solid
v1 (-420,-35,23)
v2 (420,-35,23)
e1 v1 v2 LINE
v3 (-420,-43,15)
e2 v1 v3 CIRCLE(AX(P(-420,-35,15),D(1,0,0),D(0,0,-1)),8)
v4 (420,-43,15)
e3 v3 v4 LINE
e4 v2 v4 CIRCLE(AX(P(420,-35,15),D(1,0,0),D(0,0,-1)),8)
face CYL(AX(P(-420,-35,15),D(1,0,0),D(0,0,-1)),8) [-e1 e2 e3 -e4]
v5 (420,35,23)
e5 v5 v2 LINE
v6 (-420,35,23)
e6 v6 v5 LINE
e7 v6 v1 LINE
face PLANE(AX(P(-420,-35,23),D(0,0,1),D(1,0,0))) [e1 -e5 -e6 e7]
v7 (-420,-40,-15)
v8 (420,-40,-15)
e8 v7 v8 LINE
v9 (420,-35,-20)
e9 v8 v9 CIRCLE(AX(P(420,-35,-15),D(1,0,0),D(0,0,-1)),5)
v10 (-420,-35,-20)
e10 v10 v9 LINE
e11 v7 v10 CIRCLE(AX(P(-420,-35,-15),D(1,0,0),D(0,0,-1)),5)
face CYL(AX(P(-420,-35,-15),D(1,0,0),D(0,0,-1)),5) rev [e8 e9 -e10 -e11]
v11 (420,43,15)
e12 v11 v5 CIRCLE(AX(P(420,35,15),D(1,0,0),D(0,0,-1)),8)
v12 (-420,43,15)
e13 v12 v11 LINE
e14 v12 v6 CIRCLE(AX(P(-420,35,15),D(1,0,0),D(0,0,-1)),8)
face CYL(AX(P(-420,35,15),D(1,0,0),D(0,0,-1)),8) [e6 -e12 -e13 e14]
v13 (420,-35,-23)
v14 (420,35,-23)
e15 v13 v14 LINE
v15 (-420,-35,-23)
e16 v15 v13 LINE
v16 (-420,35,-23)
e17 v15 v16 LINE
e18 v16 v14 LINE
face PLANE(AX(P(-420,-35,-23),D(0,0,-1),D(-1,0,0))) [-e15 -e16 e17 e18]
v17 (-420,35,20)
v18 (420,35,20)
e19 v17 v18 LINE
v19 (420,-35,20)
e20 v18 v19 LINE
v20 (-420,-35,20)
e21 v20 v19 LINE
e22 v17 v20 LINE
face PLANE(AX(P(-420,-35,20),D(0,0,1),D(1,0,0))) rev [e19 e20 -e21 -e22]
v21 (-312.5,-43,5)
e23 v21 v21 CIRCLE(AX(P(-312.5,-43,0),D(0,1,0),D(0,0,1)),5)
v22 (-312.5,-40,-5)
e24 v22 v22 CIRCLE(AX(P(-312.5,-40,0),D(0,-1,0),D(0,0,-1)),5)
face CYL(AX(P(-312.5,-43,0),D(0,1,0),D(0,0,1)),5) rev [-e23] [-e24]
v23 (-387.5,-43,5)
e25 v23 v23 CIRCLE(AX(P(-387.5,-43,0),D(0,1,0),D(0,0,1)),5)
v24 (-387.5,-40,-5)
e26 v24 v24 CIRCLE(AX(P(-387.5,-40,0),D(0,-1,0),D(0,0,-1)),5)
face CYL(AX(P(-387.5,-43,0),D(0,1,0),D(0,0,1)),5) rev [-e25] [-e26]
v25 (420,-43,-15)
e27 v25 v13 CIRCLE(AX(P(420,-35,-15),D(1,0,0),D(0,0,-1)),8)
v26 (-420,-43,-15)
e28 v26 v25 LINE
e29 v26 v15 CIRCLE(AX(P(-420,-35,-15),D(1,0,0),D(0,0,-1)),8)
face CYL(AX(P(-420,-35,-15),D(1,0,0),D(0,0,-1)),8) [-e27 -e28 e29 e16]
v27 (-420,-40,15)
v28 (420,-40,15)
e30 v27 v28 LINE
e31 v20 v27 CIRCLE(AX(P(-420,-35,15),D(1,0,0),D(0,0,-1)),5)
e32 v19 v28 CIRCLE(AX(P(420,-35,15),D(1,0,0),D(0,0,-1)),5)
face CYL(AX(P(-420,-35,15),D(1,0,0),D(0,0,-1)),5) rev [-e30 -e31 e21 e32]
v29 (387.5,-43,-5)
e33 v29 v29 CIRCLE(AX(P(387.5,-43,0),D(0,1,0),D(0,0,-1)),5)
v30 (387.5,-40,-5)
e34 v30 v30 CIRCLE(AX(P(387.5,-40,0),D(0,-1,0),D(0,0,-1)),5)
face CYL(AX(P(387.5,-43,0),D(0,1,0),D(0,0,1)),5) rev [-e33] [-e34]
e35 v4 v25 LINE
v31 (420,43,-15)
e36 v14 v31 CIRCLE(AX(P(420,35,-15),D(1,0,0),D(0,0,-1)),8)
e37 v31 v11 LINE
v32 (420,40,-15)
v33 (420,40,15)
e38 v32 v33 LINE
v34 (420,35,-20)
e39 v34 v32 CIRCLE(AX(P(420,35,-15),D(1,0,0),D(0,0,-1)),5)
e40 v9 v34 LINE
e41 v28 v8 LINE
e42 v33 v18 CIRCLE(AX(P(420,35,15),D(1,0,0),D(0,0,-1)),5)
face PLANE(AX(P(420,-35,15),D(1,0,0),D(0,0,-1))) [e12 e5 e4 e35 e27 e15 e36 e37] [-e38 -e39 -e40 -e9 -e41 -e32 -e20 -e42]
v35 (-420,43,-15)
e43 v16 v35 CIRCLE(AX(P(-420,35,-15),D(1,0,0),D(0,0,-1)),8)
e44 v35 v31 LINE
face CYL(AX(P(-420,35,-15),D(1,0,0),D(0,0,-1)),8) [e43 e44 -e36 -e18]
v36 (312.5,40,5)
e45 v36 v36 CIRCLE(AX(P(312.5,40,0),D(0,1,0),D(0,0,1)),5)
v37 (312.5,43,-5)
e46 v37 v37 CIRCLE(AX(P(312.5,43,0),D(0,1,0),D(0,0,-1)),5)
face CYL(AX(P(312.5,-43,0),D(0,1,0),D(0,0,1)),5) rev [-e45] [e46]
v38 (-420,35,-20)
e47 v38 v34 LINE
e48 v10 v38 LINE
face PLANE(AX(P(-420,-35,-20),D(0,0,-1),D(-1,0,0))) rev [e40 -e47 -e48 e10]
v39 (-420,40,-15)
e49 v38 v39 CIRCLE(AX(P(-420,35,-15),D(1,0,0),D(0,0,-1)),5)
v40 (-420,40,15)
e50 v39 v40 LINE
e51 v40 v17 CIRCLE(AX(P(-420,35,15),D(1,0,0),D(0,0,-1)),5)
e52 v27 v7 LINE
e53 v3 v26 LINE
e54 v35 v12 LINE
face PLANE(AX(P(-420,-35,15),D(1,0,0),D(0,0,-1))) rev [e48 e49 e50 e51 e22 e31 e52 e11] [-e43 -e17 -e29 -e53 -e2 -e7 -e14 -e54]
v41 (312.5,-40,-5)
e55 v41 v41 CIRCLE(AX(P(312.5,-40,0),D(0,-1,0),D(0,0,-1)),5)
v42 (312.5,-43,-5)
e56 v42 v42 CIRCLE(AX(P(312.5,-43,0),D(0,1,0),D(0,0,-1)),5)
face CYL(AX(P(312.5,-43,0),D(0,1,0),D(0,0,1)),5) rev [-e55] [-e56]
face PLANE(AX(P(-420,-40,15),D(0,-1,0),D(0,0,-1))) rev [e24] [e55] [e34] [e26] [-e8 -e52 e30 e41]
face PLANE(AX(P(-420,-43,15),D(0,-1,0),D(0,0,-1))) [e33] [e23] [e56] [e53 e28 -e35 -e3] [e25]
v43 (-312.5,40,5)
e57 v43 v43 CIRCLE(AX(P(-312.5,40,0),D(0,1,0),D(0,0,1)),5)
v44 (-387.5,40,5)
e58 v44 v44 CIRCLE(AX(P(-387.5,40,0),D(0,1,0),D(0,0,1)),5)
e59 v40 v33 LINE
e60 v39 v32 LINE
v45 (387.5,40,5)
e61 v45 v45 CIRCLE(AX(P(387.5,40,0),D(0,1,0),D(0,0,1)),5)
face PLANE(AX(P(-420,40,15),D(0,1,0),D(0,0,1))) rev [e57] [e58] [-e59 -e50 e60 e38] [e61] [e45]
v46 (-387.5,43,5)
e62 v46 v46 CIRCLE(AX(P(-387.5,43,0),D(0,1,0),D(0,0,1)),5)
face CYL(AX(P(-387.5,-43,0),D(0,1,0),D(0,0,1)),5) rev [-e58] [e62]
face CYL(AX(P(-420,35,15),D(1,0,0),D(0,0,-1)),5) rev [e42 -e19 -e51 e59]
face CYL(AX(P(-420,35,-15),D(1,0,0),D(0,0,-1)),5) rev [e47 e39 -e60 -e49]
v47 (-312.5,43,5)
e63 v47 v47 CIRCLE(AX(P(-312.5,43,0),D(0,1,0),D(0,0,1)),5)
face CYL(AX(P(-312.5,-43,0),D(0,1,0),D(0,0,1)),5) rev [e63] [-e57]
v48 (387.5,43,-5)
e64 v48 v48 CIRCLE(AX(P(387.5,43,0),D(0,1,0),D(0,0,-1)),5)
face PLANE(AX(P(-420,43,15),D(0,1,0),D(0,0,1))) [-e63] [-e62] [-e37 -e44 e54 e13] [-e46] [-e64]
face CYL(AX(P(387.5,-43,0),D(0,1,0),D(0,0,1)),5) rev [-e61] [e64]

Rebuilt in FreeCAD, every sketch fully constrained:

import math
import FreeCAD as App
import Part
import Sketcher
Q = App.Units.Quantity

doc = App.newDocument("Part")
params = doc.addObject("Spreadsheet::Sheet", "Params")
for row, (alias, value) in enumerate([
    ("sketch1_radius", "8 mm"),
    ("sketch1_radius2", "5 mm"),
    ("sketch1_width", "70 mm"),
    ("sketch1_height", "30 mm"),
    ("pad1_length", "420 mm"),
    ("pad1_length2", "420 mm"),
    ("sketch2_diameter", "10 mm"),
], start=1):
    params.set(f"A{row}", alias)
    params.set(f"B{row}", "=" + value)
    params.setAlias(f"B{row}", alias)

body = doc.addObject("PartDesign::Body", "Body")

sketch1 = body.newObject("Sketcher::SketchObject", "Sketch")
sketch1.AttachmentSupport = (doc.getObject("YZ_Plane"), [""])
sketch1.MapMode = "FlatFace"
sketch1.addGeometry(Part.LineSegment(App.Vector(35, 23, 0), App.Vector(-35, 23, 0)), False)
sketch1.addGeometry(Part.ArcOfCircle(Part.Circle(App.Vector(-35, 15, 0), App.Vector(0, 0, 1), 8), math.radians(90), math.radians(180)), False)
sketch1.addGeometry(Part.LineSegment(App.Vector(-43, 15, 0), App.Vector(-43, -15, 0)), False)
sketch1.addGeometry(Part.ArcOfCircle(Part.Circle(App.Vector(-35, -15, 0), App.Vector(0, 0, 1), 8), math.radians(-180), math.radians(-90)), False)
sketch1.addGeometry(Part.LineSegment(App.Vector(-35, -23, 0), App.Vector(35, -23, 0)), False)
sketch1.addGeometry(Part.ArcOfCircle(Part.Circle(App.Vector(35, -15, 0), App.Vector(0, 0, 1), 8), math.radians(-90), math.radians(0)), False)
sketch1.addGeometry(Part.LineSegment(App.Vector(43, -15, 0), App.Vector(43, 15, 0)), False)
sketch1.addGeometry(Part.ArcOfCircle(Part.Circle(App.Vector(35, 15, 0), App.Vector(0, 0, 1), 8), math.radians(0), math.radians(90)), False)
sketch1.addGeometry(Part.LineSegment(App.Vector(-35, 20, 0), App.Vector(35, 20, 0)), False)
sketch1.addGeometry(Part.ArcOfCircle(Part.Circle(App.Vector(35, 15, 0), App.Vector(0, 0, 1), 5), math.radians(0), math.radians(90)), False)
sketch1.addGeometry(Part.LineSegment(App.Vector(40, 15, 0), App.Vector(40, -15, 0)), False)
sketch1.addGeometry(Part.ArcOfCircle(Part.Circle(App.Vector(35, -15, 0), App.Vector(0, 0, 1), 5), math.radians(-90), math.radians(0)), False)
sketch1.addGeometry(Part.LineSegment(App.Vector(35, -20, 0), App.Vector(-35, -20, 0)), False)
sketch1.addGeometry(Part.ArcOfCircle(Part.Circle(App.Vector(-35, -15, 0), App.Vector(0, 0, 1), 5), math.radians(180), math.radians(270)), False)
sketch1.addGeometry(Part.LineSegment(App.Vector(-40, -15, 0), App.Vector(-40, 15, 0)), False)
sketch1.addGeometry(Part.ArcOfCircle(Part.Circle(App.Vector(-35, 15, 0), App.Vector(0, 0, 1), 5), math.radians(90), math.radians(180)), False)
sketch1.addConstraint(Sketcher.Constraint("Tangent", 0, 2, 1, 1))
sketch1.addConstraint(Sketcher.Constraint("Tangent", 1, 2, 2, 1))
sketch1.addConstraint(Sketcher.Constraint("Tangent", 2, 2, 3, 1))
sketch1.addConstraint(Sketcher.Constraint("Tangent", 3, 2, 4, 1))
sketch1.addConstraint(Sketcher.Constraint("Tangent", 4, 2, 5, 1))
sketch1.addConstraint(Sketcher.Constraint("Tangent", 5, 2, 6, 1))
sketch1.addConstraint(Sketcher.Constraint("Tangent", 6, 2, 7, 1))
sketch1.addConstraint(Sketcher.Constraint("Tangent", 7, 2, 0, 1))
sketch1.addConstraint(Sketcher.Constraint("Tangent", 8, 2, 9, 2))
sketch1.addConstraint(Sketcher.Constraint("Tangent", 9, 1, 10, 1))
sketch1.addConstraint(Sketcher.Constraint("Tangent", 10, 2, 11, 2))
sketch1.addConstraint(Sketcher.Constraint("Tangent", 11, 1, 12, 1))
sketch1.addConstraint(Sketcher.Constraint("Tangent", 12, 2, 13, 2))
sketch1.addConstraint(Sketcher.Constraint("Tangent", 13, 1, 14, 1))
sketch1.addConstraint(Sketcher.Constraint("Tangent", 14, 2, 15, 2))
sketch1.addConstraint(Sketcher.Constraint("Tangent", 15, 1, 8, 1))
sketch1.addConstraint(Sketcher.Constraint("Horizontal", 0))
sketch1.addConstraint(Sketcher.Constraint("Vertical", 2))
sketch1.addConstraint(Sketcher.Constraint("Horizontal", 4))
sketch1.addConstraint(Sketcher.Constraint("Vertical", 6))
sketch1.addConstraint(Sketcher.Constraint("Horizontal", 8))
sketch1.addConstraint(Sketcher.Constraint("Vertical", 10))
sketch1.addConstraint(Sketcher.Constraint("Horizontal", 12))
sketch1.addConstraint(Sketcher.Constraint("Vertical", 14))
sketch1.addConstraint(Sketcher.Constraint("Coincident", 9, 3, 7, 3))
sketch1.addConstraint(Sketcher.Constraint("Coincident", 11, 3, 5, 3))
sketch1.addConstraint(Sketcher.Constraint("Coincident", 13, 3, 3, 3))
sketch1.addConstraint(Sketcher.Constraint("Equal", 1, 3))
sketch1.addConstraint(Sketcher.Constraint("Equal", 3, 5))
sketch1.addConstraint(Sketcher.Constraint("Equal", 5, 7))
sketch1.addConstraint(Sketcher.Constraint("Equal", 13, 15))
sketch1.addConstraint(Sketcher.Constraint("Symmetric", 1, 3, 5, 3, -1, 1))
sketch1.addConstraint(Sketcher.Constraint("Radius", 1, Q("8 mm")))
sketch1.addConstraint(Sketcher.Constraint("Radius", 9, Q("5 mm")))
sketch1.addConstraint(Sketcher.Constraint("DistanceX", 0, 2, 0, 1, Q("70 mm")))
sketch1.addConstraint(Sketcher.Constraint("DistanceY", 2, 2, 2, 1, Q("30 mm")))
sketch1.setExpression("Constraints[32]", "Params.sketch1_radius")
sketch1.setExpression("Constraints[33]", "Params.sketch1_radius2")
sketch1.setExpression("Constraints[34]", "Params.sketch1_width")
sketch1.setExpression("Constraints[35]", "Params.sketch1_height")
pad1 = body.newObject("PartDesign::Pad", "Pad")
pad1.Profile = sketch1
pad1.Type = "TwoLengths"
pad1.setExpression("Length", "Params.pad1_length")
pad1.setExpression("Length2", "Params.pad1_length2")

sketch2 = body.newObject("Sketcher::SketchObject", "Sketch001")
sketch2.AttachmentSupport = (doc.getObject("XZ_Plane"), [""])
sketch2.MapMode = "FlatFace"
sketch2.addGeometry(Part.Circle(App.Vector(-388, 0, 0), App.Vector(0, 0, 1), 5), False)
sketch2.addGeometry(Part.Circle(App.Vector(-312, 0, 0), App.Vector(0, 0, 1), 5), False)
sketch2.addGeometry(Part.Circle(App.Vector(388, 0, 0), App.Vector(0, 0, 1), 5), False)
sketch2.addGeometry(Part.Circle(App.Vector(312, 0, 0), App.Vector(0, 0, 1), 5), False)
sketch2.addConstraint(Sketcher.Constraint("Equal", 0, 1))
sketch2.addConstraint(Sketcher.Constraint("Equal", 1, 2))
sketch2.addConstraint(Sketcher.Constraint("Equal", 2, 3))
sketch2.addConstraint(Sketcher.Constraint("Symmetric", 0, 3, 2, 3, -1, 1))
sketch2.addConstraint(Sketcher.Constraint("Symmetric", 1, 3, 3, 3, -1, 1))
sketch2.addConstraint(Sketcher.Constraint("PointOnObject", 0, 3, -1))
sketch2.addConstraint(Sketcher.Constraint("PointOnObject", 1, 3, -1))
sketch2.addConstraint(Sketcher.Constraint("Diameter", 0, Q("10 mm")))
sketch2.addConstraint(Sketcher.Constraint("DistanceX", 0, 3, 1, 3, Q("75 mm")))
sketch2.addConstraint(Sketcher.Constraint("DistanceX", 1, 3, 2, 3, Q("700 mm")))
sketch2.setExpression("Constraints[7]", "Params.sketch2_diameter")
pocket1 = body.newObject("PartDesign::Pocket", "Pocket")
pocket1.Profile = sketch2
pocket1.Type = "ThroughAll"
pocket1.Midplane = True

doc.recompute()
